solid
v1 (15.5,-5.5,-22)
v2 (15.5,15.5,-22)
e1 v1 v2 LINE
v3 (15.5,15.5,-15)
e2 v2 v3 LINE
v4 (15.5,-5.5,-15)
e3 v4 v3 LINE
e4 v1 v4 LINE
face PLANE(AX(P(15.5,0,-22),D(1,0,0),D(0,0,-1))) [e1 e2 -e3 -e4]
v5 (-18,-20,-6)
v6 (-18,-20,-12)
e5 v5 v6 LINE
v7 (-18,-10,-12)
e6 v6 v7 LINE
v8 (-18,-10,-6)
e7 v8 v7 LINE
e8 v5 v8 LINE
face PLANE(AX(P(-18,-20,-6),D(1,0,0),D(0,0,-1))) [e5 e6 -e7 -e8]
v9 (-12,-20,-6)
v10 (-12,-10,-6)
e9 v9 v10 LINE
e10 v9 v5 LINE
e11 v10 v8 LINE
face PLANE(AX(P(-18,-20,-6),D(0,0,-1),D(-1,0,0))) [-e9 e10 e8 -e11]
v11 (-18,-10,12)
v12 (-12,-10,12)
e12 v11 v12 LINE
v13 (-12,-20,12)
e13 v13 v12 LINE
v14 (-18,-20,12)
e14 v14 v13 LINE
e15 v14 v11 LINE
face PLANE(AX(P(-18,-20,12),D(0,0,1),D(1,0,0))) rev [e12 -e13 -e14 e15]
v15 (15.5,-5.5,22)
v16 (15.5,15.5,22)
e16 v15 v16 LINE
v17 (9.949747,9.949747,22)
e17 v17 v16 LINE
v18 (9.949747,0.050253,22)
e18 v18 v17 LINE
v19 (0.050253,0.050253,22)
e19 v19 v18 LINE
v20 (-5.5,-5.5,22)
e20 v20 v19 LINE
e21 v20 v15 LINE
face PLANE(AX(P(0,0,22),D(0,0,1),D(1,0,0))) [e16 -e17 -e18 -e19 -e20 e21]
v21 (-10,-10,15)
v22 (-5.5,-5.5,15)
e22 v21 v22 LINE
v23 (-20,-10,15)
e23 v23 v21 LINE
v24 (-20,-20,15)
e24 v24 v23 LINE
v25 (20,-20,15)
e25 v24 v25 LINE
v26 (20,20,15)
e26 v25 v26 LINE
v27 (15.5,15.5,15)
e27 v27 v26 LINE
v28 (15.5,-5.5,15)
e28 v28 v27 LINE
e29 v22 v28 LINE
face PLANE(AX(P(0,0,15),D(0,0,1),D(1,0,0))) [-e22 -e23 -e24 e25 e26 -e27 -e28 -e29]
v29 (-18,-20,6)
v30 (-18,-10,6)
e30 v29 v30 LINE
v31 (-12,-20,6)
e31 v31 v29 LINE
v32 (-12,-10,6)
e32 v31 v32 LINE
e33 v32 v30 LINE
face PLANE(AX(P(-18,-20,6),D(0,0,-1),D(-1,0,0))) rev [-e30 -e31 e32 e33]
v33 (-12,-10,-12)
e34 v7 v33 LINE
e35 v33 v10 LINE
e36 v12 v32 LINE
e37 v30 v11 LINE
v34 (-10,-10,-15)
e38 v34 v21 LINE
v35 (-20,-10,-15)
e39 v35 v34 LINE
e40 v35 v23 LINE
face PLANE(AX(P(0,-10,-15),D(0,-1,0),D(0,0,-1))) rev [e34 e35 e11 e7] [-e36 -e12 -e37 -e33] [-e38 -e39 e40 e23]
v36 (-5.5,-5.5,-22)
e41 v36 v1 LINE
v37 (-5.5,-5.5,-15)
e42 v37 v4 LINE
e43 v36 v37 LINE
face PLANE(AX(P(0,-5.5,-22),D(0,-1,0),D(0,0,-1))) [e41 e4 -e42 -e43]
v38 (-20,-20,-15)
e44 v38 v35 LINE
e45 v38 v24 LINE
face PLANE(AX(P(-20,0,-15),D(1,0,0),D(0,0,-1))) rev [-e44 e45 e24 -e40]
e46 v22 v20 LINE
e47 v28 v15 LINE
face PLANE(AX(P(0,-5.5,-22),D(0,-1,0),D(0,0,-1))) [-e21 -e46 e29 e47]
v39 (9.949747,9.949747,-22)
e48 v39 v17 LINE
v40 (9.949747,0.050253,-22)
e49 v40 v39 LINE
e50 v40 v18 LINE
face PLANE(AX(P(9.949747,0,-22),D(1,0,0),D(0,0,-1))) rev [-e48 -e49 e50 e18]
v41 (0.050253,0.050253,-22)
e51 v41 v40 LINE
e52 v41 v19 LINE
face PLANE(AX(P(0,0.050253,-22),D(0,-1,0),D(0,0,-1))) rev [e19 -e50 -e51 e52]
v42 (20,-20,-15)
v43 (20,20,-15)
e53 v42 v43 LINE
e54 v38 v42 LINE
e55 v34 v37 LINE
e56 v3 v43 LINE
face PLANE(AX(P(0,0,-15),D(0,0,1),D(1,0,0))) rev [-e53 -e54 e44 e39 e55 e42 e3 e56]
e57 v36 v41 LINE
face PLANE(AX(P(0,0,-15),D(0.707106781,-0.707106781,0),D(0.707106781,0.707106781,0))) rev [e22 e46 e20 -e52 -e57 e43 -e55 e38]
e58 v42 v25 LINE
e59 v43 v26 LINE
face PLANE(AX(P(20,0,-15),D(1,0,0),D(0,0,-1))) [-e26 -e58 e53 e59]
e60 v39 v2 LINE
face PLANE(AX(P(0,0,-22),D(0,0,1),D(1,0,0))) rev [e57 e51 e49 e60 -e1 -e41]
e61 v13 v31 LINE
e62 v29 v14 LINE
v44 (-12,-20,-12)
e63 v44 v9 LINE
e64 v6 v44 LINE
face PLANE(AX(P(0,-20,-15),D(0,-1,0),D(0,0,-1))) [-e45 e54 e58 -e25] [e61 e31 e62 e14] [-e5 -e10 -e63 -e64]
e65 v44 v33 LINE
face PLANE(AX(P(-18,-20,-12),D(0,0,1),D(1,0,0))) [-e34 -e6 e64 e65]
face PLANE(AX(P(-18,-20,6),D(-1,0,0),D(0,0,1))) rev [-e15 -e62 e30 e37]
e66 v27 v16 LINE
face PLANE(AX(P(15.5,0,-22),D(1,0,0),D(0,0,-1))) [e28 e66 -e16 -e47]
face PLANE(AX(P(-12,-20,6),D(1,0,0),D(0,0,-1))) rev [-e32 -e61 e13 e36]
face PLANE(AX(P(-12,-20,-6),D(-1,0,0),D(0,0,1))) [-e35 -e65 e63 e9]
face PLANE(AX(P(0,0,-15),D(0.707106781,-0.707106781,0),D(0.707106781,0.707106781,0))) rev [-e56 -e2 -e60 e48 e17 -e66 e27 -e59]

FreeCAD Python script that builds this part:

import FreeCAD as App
import Part
import Sketcher
Q = App.Units.Quantity


def add_polygon(sketch, points):
    """Adds a closed chain of lines whose ends are joined by coincident constraints."""
    first, n = sketch.GeometryCount, len(points)
    for a, b in zip(points, points[1:] + points[:1]):
        sketch.addGeometry(Part.LineSegment(App.Vector(*a, 0), App.Vector(*b, 0)), False)
    for i in range(n):
        sketch.addConstraint(Sketcher.Constraint("Coincident", first + i, 2, first + (i + 1) % n, 1))

doc = App.newDocument("Part")
body = doc.addObject("PartDesign::Body", "Body")

sketch1 = body.newObject("Sketcher::SketchObject", "Sketch")
sketch1.AttachmentSupport = (doc.getObject("XY_Plane"), [""])
sketch1.MapMode = "FlatFace"
add_polygon(sketch1, [(-10, -10), (-20, -10), (-20, -20), (20, -20), (20, 20), (16, 16), (16, -6), (-6, -6)])
sketch1.addConstraint([
    Sketcher.Constraint("Horizontal", 0),
    Sketcher.Constraint("Vertical", 1),
    Sketcher.Constraint("Horizontal", 2),
    Sketcher.Constraint("Vertical", 3),
    Sketcher.Constraint("Vertical", 5),
    Sketcher.Constraint("Horizontal", 6),
    Sketcher.Constraint("Symmetric", 1, 2, 3, 2, -1, 1),
    Sketcher.Constraint("Parallel", 4, 7),
    Sketcher.Constraint("Equal", 0, 1),
    Sketcher.Constraint("Equal", 2, 3),
    Sketcher.Constraint("Equal", 6, 5),
    Sketcher.Constraint("Equal", 4, 7),
    Sketcher.Constraint("DistanceX", 0, 2, 0, 1, Q("10 mm")),
    Sketcher.Constraint("DistanceX", 2, 1, 2, 2, Q("40 mm")),
    Sketcher.Constraint("DistanceX", 6, 2, 6, 1, Q("21 mm")),
])
pad1 = body.newObject("PartDesign::Pad", "Pad")
pad1.Profile = sketch1
pad1.Type = "TwoLengths"
pad1.Length = 15
pad1.Length2 = 15

sketch2 = body.newObject("Sketcher::SketchObject", "Sketch001")
sketch2.AttachmentSupport = (doc.getObject("XY_Plane"), [""])
sketch2.MapMode = "FlatFace"
add_polygon(sketch2, [(0, 0), (-6, -6), (16, -6), (16, 16), (10, 10), (10, 0)])
sketch2.addConstraint([
    Sketcher.Constraint("Horizontal", 1),
    Sketcher.Constraint("Vertical", 2),
    Sketcher.Constraint("Vertical", 4),
    Sketcher.Constraint("Horizontal", 5),
    Sketcher.Constraint("Parallel", 0, 3),
    Sketcher.Constraint("Equal", 1, 2),
    Sketcher.Constraint("Equal", 5, 4),
    Sketcher.Constraint("Equal", 0, 3),
    Sketcher.Constraint("DistanceX", 1, 1, 1, 2, Q("21 mm")),
    Sketcher.Constraint("DistanceX", 0, 2, -1, 1, Q("5.5 mm")),
    Sketcher.Constraint("DistanceY", 0, 2, -1, 1, Q("5.5 mm")),
    Sketcher.Constraint("DistanceX", 5, 2, 5, 1, Q("9.899495 mm")),
])
pad2 = body.newObject("PartDesign::Pad", "Pad001")
pad2.Profile = sketch2
pad2.Type = "TwoLengths"
pad2.Length = 22
pad2.Length2 = 22

sketch3 = body.newObject("Sketcher::SketchObject", "Sketch002")
sketch3.AttachmentSupport = (doc.getObject("XZ_Plane"), [""])
sketch3.MapMode = "FlatFace"
sketch3.AttachmentOffset = App.Placement(App.Vector(0, 0, 10), App.Rotation())
add_polygon(sketch3, [(-18, 6), (-18, 12), (-12, 12), (-12, 6)])
sketch3.addConstraint([
    Sketcher.Constraint("Vertical", 0),
    Sketcher.Constraint("Horizontal", 1),
    Sketcher.Constraint("Vertical", 2),
    Sketcher.Constraint("Horizontal", 3),
    Sketcher.Constraint("Equal", 3, 0),
    Sketcher.Constraint("DistanceX", 1, 1, 1, 2, Q("6 mm")),
    Sketcher.Constraint("DistanceX", 0, 2, -1, 1, Q("18 mm")),
    Sketcher.Constraint("DistanceY", -1, 1, 0, 2, Q("12 mm")),
])
pocket1 = body.newObject("PartDesign::Pocket", "Pocket")
pocket1.Profile = sketch3
pocket1.Type = "ThroughAll"
pocket1.Reversed = True
doc.recompute()

mirrored = body.newObject("PartDesign::Mirrored", "Mirrored")
mirrored.Originals = [pocket1]
mirrored.MirrorPlane = (doc.getObject("XY_Plane"), [""])
body.Tip = mirrored

doc.recompute()
